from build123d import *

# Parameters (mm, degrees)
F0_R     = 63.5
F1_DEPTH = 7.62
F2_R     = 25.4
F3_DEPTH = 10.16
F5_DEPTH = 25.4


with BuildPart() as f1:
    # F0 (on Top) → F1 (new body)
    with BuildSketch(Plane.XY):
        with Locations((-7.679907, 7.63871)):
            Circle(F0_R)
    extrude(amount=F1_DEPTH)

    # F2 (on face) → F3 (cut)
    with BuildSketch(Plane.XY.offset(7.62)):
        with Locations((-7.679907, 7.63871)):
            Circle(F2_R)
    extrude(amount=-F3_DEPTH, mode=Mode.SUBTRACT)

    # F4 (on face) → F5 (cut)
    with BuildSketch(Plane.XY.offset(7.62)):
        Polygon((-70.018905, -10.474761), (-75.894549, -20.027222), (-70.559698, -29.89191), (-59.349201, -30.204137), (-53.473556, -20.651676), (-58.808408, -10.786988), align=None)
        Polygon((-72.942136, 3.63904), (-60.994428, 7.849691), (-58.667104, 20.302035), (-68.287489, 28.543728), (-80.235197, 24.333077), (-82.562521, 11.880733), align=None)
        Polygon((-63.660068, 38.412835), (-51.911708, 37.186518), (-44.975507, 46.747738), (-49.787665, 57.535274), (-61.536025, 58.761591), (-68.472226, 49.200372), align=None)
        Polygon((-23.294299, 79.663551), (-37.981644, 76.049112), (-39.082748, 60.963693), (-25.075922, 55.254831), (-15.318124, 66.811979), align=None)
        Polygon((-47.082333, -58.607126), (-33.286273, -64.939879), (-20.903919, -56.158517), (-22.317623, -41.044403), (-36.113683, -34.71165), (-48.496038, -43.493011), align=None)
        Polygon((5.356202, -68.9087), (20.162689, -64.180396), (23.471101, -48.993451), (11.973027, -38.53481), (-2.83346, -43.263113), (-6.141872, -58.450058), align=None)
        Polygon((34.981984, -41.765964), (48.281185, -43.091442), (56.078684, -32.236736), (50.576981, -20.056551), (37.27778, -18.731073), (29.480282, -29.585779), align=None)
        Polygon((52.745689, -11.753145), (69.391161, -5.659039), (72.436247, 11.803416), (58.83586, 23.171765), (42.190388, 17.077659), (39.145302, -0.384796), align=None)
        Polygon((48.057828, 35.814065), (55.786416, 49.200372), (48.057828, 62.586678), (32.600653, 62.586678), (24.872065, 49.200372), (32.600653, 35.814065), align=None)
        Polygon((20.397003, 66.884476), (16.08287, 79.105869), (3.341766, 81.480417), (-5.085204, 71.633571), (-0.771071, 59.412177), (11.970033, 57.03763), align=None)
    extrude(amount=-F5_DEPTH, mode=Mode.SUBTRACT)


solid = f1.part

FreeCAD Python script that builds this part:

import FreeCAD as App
import Part
import Sketcher

V = App.Vector
Q = App.Units.Quantity


def add_polygon(sketch, points):
    """Adds a closed chain of lines whose ends are joined by coincident constraints."""
    first, n = sketch.GeometryCount, len(points)
    for a, b in zip(points, points[1:] + points[:1]):
        sketch.addGeometry(Part.LineSegment(App.Vector(*a, 0), App.Vector(*b, 0)), False)
    for i in range(n):
        sketch.addConstraint(Sketcher.Constraint("Coincident", first + i, 2, first + (i + 1) % n, 1))

doc = App.newDocument("Part")
body = doc.addObject("PartDesign::Body", "Body")

# Sketch on XY plane
sketch1 = body.newObject("Sketcher::SketchObject", "Sketch")
sketch1.AttachmentSupport = (doc.getObject("XY_Plane"), [""])
sketch1.MapMode = "FlatFace"
sketch1.addGeometry(Part.Circle(V(-8, 8, 0), V(0, 0, 1), 64), False)
sketch1.addConstraint(Sketcher.Constraint("Diameter", 0, Q("5 in")))
sketch1.addConstraint(Sketcher.Constraint("DistanceY", -1, 1, 0, 3, 7.63871))
sketch1.addConstraint(Sketcher.Constraint("DistanceX", 0, 3, -1, 1, 7.679907))
pad1 = body.newObject("PartDesign::Pad", "Pad")
pad1.Profile = sketch1
pad1.Length = Q("0.3 in")

# Sketch on XY plane
sketch2 = body.newObject("Sketcher::SketchObject", "Sketch001")
sketch2.AttachmentSupport = (doc.getObject("XY_Plane"), [""])
sketch2.MapMode = "FlatFace"
sketch2.AttachmentOffset = App.Placement(V(0, 0, 0.3 * 25.4), App.Rotation())
sketch2.addGeometry(Part.Circle(V(-8, 8, 0), V(0, 0, 1), 25), False)
sketch2.addConstraint(Sketcher.Constraint("Diameter", 0, Q("2 in")))
sketch2.addConstraint(Sketcher.Constraint("DistanceY", -1, 1, 0, 3, 7.63871))
sketch2.addConstraint(Sketcher.Constraint("DistanceX", 0, 3, -1, 1, 7.679907))
pocket1 = body.newObject("PartDesign::Pocket", "Pocket")
pocket1.Profile = sketch2
pocket1.Length = Q("0.4 in")

# Sketch on XY plane
sketch3 = body.newObject("Sketcher::SketchObject", "Sketch002")
sketch3.AttachmentSupport = (doc.getObject("XY_Plane"), [""])
sketch3.MapMode = "FlatFace"
sketch3.AttachmentOffset = App.Placement(V(0, 0, 0.3 * 25.4), App.Rotation())
add_polygon(sketch3, [(-70.018905, -10.474761), (-75.894549, -20.027222), (-70.559698, -29.89191), (-59.349201, -30.204137), (-53.473556, -20.651676), (-58.808408, -10.786988)])  # lines 0-5
add_polygon(sketch3, [(-72.942136, 3.63904), (-60.994428, 7.849691), (-58.667104, 20.302035), (-68.287489, 28.543728), (-80.235197, 24.333077), (-82.562521, 11.880733)])  # lines 6-11
add_polygon(sketch3, [(-63.660068, 38.412835), (-51.911708, 37.186518), (-44.975507, 46.747738), (-49.787665, 57.535274), (-61.536025, 58.761591), (-68.472226, 49.200372)])  # lines 12-17
add_polygon(sketch3, [(-23.294299, 79.663551), (-37.981644, 76.049112), (-39.082748, 60.963693), (-25.075922, 55.254831), (-15.318124, 66.811979)])  # lines 18-22
add_polygon(sketch3, [(-47.082333, -58.607126), (-33.286273, -64.939879), (-20.903919, -56.158517), (-22.317623, -41.044403), (-36.113683, -34.71165), (-48.496038, -43.493011)])  # lines 23-28
add_polygon(sketch3, [(5.356202, -68.9087), (20.162689, -64.180396), (23.471101, -48.993451), (11.973027, -38.53481), (-2.83346, -43.263113), (-6.141872, -58.450058)])  # lines 29-34
add_polygon(sketch3, [(34.981984, -41.765964), (48.281185, -43.091442), (56.078684, -32.236736), (50.576981, -20.056551), (37.27778, -18.731073), (29.480282, -29.585779)])  # lines 35-40
add_polygon(sketch3, [(52.745689, -11.753145), (69.391161, -5.659039), (72.436247, 11.803416), (58.83586, 23.171765), (42.190388, 17.077659), (39.145302, -0.384796)])  # lines 41-46
add_polygon(sketch3, [(48.057828, 35.814065), (55.786416, 49.200372), (48.057828, 62.586678), (32.600653, 62.586678), (24.872065, 49.200372), (32.600653, 35.814065)])  # lines 47-52
add_polygon(sketch3, [(20.397003, 66.884476), (16.08287, 79.105869), (3.341766, 81.480417), (-5.085204, 71.633571), (-0.771071, 59.412177), (11.970033, 57.03763)])  # lines 53-58
sketch3.addConstraint(Sketcher.Constraint("Horizontal", 49))
sketch3.addConstraint(Sketcher.Constraint("Horizontal", 52))
sketch3.addConstraint(Sketcher.Constraint("DistanceX", 2, 2, -1, 1, 59.349201))
sketch3.addConstraint(Sketcher.Constraint("DistanceX", 22, 2, -1, 1, 23.294299))
sketch3.addConstraint(Sketcher.Constraint("DistanceX", -1, 1, 30, 2, 23.471101))
sketch3.addConstraint(Sketcher.Constraint("DistanceX", -1, 1, 34, 2, 5.356202))
sketch3.addConstraint(Sketcher.Constraint("DistanceY", 34, 2, -1, 1, 68.9087))
sketch3.addConstraint(Sketcher.Constraint("DistanceX", 5, 2, 7, 2, 11.351801))
sketch3.addConstraint(Sketcher.Constraint("DistanceY", 5, 2, 11, 2, 14.113801))
sketch3.addConstraint(Sketcher.Constraint("DistanceX", 12, 2, 13, 2, 6.936201))
sketch3.addConstraint(Sketcher.Constraint("DistanceX", 16, 2, 15, 2, 6.936201))
sketch3.addConstraint(Sketcher.Constraint("DistanceY", 7, 2, 17, 2, 18.1108))
sketch3.addConstraint(Sketcher.Constraint("DistanceY", 15, 2, 19, 2, 2.202102))
sketch3.addConstraint(Sketcher.Constraint("DistanceY", 27, 2, 1, 2, 13.601101))
sketch3.addConstraint(Sketcher.Constraint("DistanceY", 30, 2, 26, 2, 14.281801))
sketch3.addConstraint(Sketcher.Constraint("DistanceX", 33, 2, 31, 2, 18.114899))
sketch3.addConstraint(Sketcher.Constraint("DistanceX", 35, 2, 36, 2, 7.797499))
sketch3.addConstraint(Sketcher.Constraint("DistanceY", 30, 2, 37, 2, 28.9369))
sketch3.addConstraint(Sketcher.Constraint("DistanceX", 38, 2, 37, 2, 13.299201))
sketch3.addConstraint(Sketcher.Constraint("DistanceX", 39, 2, 38, 2, 7.797498))
sketch3.addConstraint(Sketcher.Constraint("DistanceX", 39, 2, 40, 2, 5.501702))
sketch3.addConstraint(Sketcher.Constraint("DistanceX", 40, 2, 35, 2, 13.299201))
sketch3.addConstraint(Sketcher.Constraint("DistanceX", 43, 2, 41, 2, 10.555301))
sketch3.addConstraint(Sketcher.Constraint("DistanceY", 36, 2, 43, 2, 55.408501))
sketch3.addConstraint(Sketcher.Constraint("DistanceY", 41, 2, 44, 2, 22.736698))
sketch3.addConstraint(Sketcher.Constraint("DistanceY", 48, 2, 21, 2, 4.225301))
sketch3.addConstraint(Sketcher.Constraint("DistanceY", 43, 2, 51, 2, 12.6423))
sketch3.addConstraint(Sketcher.Constraint("DistanceY", 56, 2, 21, 2, 7.399802))
sketch3.addConstraint(Sketcher.Constraint("DistanceY", 49, 2, 58, 2, 4.297798))
sketch3.addConstraint(Sketcher.Constraint("Distance", 12, 11.812189))
sketch3.addConstraint(Sketcher.Constraint("Distance", 13, 11.812189))
sketch3.addConstraint(Sketcher.Constraint("Distance", 14, 11.812189))
sketch3.addConstraint(Sketcher.Constraint("Distance", 15, 11.812189))
sketch3.addConstraint(Sketcher.Constraint("Distance", 16, 11.812188))
sketch3.addConstraint(Sketcher.Constraint("Distance", 17, 11.812189))
sketch3.addConstraint(Sketcher.Constraint("Distance", 18, 15.12555))
sketch3.addConstraint(Sketcher.Constraint("Distance", 19, 15.125551))
sketch3.addConstraint(Sketcher.Constraint("Distance", 20, 15.125551))
sketch3.addConstraint(Sketcher.Constraint("Distance", 21, 15.125551))
sketch3.addConstraint(Sketcher.Constraint("Distance", 22, 15.12555))
sketch3.addConstraint(Sketcher.Constraint("Distance", 29, 15.543131))
sketch3.addConstraint(Sketcher.Constraint("Distance", 30, 15.54313))
sketch3.addConstraint(Sketcher.Constraint("Distance", 31, 15.54313))
sketch3.addConstraint(Sketcher.Constraint("Distance", 32, 15.543131))
sketch3.addConstraint(Sketcher.Constraint("Distance", 33, 15.54313))
sketch3.addConstraint(Sketcher.Constraint("Distance", 34, 15.54313))
sketch3.addConstraint(Sketcher.Constraint("Distance", 35, 13.36509))
sketch3.addConstraint(Sketcher.Constraint("Distance", 36, 13.36509))
sketch3.addConstraint(Sketcher.Constraint("Distance", 37, 13.36509))
sketch3.addConstraint(Sketcher.Constraint("Distance", 38, 13.36509))
sketch3.addConstraint(Sketcher.Constraint("Distance", 39, 13.36509))
sketch3.addConstraint(Sketcher.Constraint("DistanceX", 49, 2, 49, 1, 15.457175))
sketch3.addConstraint(Sketcher.Constraint("DistanceX", 52, 1, 52, 2, 15.457175))
sketch3.addConstraint(Sketcher.Constraint("DistanceX", 0, 2, -1, 1, 75.894549))
sketch3.addConstraint(Sketcher.Constraint("DistanceY", 0, 2, -1, 1, 20.027222))
sketch3.addConstraint(Sketcher.Constraint("DistanceY", 1, 2, -1, 1, 29.89191))
sketch3.addConstraint(Sketcher.Constraint("DistanceY", 5, 2, -1, 1, 10.474761))
sketch3.addConstraint(Sketcher.Constraint("DistanceY", -1, 1, 6, 2, 7.849691))
sketch3.addConstraint(Sketcher.Constraint("DistanceX", 8, 2, -1, 1, 68.287489))
sketch3.addConstraint(Sketcher.Constraint("DistanceY", -1, 1, 8, 2, 28.543728))
sketch3.addConstraint(Sketcher.Constraint("DistanceX", 10, 2, -1, 1, 82.562521))
sketch3.addConstraint(Sketcher.Constraint("DistanceY", -1, 1, 15, 2, 58.761591))
sketch3.addConstraint(Sketcher.Constraint("DistanceX", 17, 2, -1, 1, 63.660068))
sketch3.addConstraint(Sketcher.Constraint("DistanceY", -1, 1, 18, 2, 76.049112))
sketch3.addConstraint(Sketcher.Constraint("DistanceX", 19, 2, -1, 1, 39.082748))
sketch3.addConstraint(Sketcher.Constraint("DistanceX", 20, 2, -1, 1, 25.075922))
sketch3.addConstraint(Sketcher.Constraint("DistanceY", 23, 2, -1, 1, 64.939879))
sketch3.addConstraint(Sketcher.Constraint("DistanceX", 24, 2, -1, 1, 20.903919))
sketch3.addConstraint(Sketcher.Constraint("DistanceY", 26, 2, -1, 1, 34.71165))
sketch3.addConstraint(Sketcher.Constraint("DistanceY", 31, 2, -1, 1, 38.53481))
sketch3.addConstraint(Sketcher.Constraint("DistanceX", -1, 1, 37, 2, 50.576981))
sketch3.addConstraint(Sketcher.Constraint("DistanceX", -1, 1, 41, 2, 69.391161))
sketch3.addConstraint(Sketcher.Constraint("DistanceY", 41, 2, -1, 1, 5.659039))
sketch3.addConstraint(Sketcher.Constraint("DistanceX", -1, 1, 46, 2, 52.745689))
sketch3.addConstraint(Sketcher.Constraint("DistanceX", -1, 1, 53, 2, 16.08287))
sketch3.addConstraint(Sketcher.Constraint("DistanceY", -1, 1, 53, 2, 79.105869))
sketch3.addConstraint(Sketcher.Constraint("DistanceY", -1, 1, 55, 2, 71.633571))
sketch3.addConstraint(Sketcher.Constraint("DistanceX", 56, 2, -1, 1, 0.771071))
sketch3.addConstraint(Sketcher.Constraint("DistanceY", -1, 1, 57, 2, 57.03763))
sketch3.addConstraint(Sketcher.Constraint("DistanceX", 0, 2, 1, 2, 5.334851))
sketch3.addConstraint(Sketcher.Constraint("DistanceY", 2, 2, 3, 2, 9.552461))
sketch3.addConstraint(Sketcher.Constraint("DistanceX", 1, 2, 3, 2, 17.086142))
sketch3.addConstraint(Sketcher.Constraint("DistanceX", 4, 2, 3, 2, 5.334852))
sketch3.addConstraint(Sketcher.Constraint("DistanceY", 2, 2, 4, 2, 19.417149))
sketch3.addConstraint(Sketcher.Constraint("DistanceX", 5, 2, 3, 2, 16.545349))
sketch3.addConstraint(Sketcher.Constraint("DistanceX", 6, 2, 4, 2, 2.18602))
sketch3.addConstraint(Sketcher.Constraint("DistanceY", 4, 2, 6, 2, 18.636679))
sketch3.addConstraint(Sketcher.Constraint("DistanceY", 3, 2, 7, 2, 40.953711))
sketch3.addConstraint(Sketcher.Constraint("DistanceX", 9, 2, 8, 2, 11.947708))
sketch3.addConstraint(Sketcher.Constraint("DistanceY", 9, 2, 8, 2, 4.210651))
sketch3.addConstraint(Sketcher.Constraint("DistanceY", 6, 2, 10, 2, 4.031042))
sketch3.addConstraint(Sketcher.Constraint("DistanceX", 11, 2, 6, 2, 11.947708))
sketch3.addConstraint(Sketcher.Constraint("DistanceX", 8, 2, 12, 2, 16.375781))
sketch3.addConstraint(Sketcher.Constraint("DistanceY", 24, 2, 2, 2, 25.95438))
sketch3.addConstraint(Sketcher.Constraint("DistanceX", 23, 2, 25, 2, 10.96865))
sketch3.addConstraint(Sketcher.Constraint("DistanceX", 26, 2, 25, 2, 13.79606))
sketch3.addConstraint(Sketcher.Constraint("DistanceX", 3, 2, 27, 2, 4.977518))
sketch3.addConstraint(Sketcher.Constraint("DistanceY", 27, 2, 25, 2, 2.448608))
sketch3.addConstraint(Sketcher.Constraint("DistanceX", 28, 2, 23, 2, 13.79606))
sketch3.addConstraint(Sketcher.Constraint("DistanceY", 28, 2, 24, 2, 2.448609))
sketch3.addConstraint(Sketcher.Constraint("DistanceX", 25, 2, 29, 2, 42.480312))
sketch3.addConstraint(Sketcher.Constraint("DistanceY", 38, 2, 42, 2, 30.534489))
sketch3.addConstraint(Sketcher.Constraint("DistanceX", 44, 2, 43, 2, 16.645472))
sketch3.addConstraint(Sketcher.Constraint("DistanceX", 44, 2, 42, 2, 30.245859))
sketch3.addConstraint(Sketcher.Constraint("DistanceX", 45, 2, 37, 2, 11.431679))
sketch3.addConstraint(Sketcher.Constraint("DistanceY", 45, 2, 43, 2, 23.556561))
sketch3.addConstraint(Sketcher.Constraint("DistanceY", 46, 2, 45, 2, 11.368349))
sketch3.addConstraint(Sketcher.Constraint("DistanceX", 44, 2, 47, 2, 13.596028))
sketch3.addConstraint(Sketcher.Constraint("DistanceY", 45, 2, 47, 2, 49.585168))
sketch3.addConstraint(Sketcher.Constraint("DistanceX", 48, 2, 47, 2, 7.728588))
sketch3.addConstraint(Sketcher.Constraint("DistanceX", 50, 2, 49, 2, 7.728588))
sketch3.addConstraint(Sketcher.Constraint("DistanceX", 50, 2, 51, 2, 7.728588))
sketch3.addConstraint(Sketcher.Constraint("DistanceY", 53, 2, 54, 2, 2.374548))
sketch3.addConstraint(Sketcher.Constraint("DistanceX", 21, 2, 54, 2, 18.65989))
sketch3.addConstraint(Sketcher.Constraint("DistanceX", 21, 2, 55, 2, 10.23292))
sketch3.addConstraint(Sketcher.Constraint("DistanceX", 57, 2, 50, 2, 12.902032))
sketch3.addConstraint(Sketcher.Constraint("DistanceX", 58, 2, 49, 2, 12.20365))
sketch3.addConstraint(Sketcher.Constraint("Distance", 50, 15.457175))
pocket2 = body.newObject("PartDesign::Pocket", "Pocket001")
pocket2.Profile = sketch3
pocket2.Length = Q("1 in")

doc.recompute()
